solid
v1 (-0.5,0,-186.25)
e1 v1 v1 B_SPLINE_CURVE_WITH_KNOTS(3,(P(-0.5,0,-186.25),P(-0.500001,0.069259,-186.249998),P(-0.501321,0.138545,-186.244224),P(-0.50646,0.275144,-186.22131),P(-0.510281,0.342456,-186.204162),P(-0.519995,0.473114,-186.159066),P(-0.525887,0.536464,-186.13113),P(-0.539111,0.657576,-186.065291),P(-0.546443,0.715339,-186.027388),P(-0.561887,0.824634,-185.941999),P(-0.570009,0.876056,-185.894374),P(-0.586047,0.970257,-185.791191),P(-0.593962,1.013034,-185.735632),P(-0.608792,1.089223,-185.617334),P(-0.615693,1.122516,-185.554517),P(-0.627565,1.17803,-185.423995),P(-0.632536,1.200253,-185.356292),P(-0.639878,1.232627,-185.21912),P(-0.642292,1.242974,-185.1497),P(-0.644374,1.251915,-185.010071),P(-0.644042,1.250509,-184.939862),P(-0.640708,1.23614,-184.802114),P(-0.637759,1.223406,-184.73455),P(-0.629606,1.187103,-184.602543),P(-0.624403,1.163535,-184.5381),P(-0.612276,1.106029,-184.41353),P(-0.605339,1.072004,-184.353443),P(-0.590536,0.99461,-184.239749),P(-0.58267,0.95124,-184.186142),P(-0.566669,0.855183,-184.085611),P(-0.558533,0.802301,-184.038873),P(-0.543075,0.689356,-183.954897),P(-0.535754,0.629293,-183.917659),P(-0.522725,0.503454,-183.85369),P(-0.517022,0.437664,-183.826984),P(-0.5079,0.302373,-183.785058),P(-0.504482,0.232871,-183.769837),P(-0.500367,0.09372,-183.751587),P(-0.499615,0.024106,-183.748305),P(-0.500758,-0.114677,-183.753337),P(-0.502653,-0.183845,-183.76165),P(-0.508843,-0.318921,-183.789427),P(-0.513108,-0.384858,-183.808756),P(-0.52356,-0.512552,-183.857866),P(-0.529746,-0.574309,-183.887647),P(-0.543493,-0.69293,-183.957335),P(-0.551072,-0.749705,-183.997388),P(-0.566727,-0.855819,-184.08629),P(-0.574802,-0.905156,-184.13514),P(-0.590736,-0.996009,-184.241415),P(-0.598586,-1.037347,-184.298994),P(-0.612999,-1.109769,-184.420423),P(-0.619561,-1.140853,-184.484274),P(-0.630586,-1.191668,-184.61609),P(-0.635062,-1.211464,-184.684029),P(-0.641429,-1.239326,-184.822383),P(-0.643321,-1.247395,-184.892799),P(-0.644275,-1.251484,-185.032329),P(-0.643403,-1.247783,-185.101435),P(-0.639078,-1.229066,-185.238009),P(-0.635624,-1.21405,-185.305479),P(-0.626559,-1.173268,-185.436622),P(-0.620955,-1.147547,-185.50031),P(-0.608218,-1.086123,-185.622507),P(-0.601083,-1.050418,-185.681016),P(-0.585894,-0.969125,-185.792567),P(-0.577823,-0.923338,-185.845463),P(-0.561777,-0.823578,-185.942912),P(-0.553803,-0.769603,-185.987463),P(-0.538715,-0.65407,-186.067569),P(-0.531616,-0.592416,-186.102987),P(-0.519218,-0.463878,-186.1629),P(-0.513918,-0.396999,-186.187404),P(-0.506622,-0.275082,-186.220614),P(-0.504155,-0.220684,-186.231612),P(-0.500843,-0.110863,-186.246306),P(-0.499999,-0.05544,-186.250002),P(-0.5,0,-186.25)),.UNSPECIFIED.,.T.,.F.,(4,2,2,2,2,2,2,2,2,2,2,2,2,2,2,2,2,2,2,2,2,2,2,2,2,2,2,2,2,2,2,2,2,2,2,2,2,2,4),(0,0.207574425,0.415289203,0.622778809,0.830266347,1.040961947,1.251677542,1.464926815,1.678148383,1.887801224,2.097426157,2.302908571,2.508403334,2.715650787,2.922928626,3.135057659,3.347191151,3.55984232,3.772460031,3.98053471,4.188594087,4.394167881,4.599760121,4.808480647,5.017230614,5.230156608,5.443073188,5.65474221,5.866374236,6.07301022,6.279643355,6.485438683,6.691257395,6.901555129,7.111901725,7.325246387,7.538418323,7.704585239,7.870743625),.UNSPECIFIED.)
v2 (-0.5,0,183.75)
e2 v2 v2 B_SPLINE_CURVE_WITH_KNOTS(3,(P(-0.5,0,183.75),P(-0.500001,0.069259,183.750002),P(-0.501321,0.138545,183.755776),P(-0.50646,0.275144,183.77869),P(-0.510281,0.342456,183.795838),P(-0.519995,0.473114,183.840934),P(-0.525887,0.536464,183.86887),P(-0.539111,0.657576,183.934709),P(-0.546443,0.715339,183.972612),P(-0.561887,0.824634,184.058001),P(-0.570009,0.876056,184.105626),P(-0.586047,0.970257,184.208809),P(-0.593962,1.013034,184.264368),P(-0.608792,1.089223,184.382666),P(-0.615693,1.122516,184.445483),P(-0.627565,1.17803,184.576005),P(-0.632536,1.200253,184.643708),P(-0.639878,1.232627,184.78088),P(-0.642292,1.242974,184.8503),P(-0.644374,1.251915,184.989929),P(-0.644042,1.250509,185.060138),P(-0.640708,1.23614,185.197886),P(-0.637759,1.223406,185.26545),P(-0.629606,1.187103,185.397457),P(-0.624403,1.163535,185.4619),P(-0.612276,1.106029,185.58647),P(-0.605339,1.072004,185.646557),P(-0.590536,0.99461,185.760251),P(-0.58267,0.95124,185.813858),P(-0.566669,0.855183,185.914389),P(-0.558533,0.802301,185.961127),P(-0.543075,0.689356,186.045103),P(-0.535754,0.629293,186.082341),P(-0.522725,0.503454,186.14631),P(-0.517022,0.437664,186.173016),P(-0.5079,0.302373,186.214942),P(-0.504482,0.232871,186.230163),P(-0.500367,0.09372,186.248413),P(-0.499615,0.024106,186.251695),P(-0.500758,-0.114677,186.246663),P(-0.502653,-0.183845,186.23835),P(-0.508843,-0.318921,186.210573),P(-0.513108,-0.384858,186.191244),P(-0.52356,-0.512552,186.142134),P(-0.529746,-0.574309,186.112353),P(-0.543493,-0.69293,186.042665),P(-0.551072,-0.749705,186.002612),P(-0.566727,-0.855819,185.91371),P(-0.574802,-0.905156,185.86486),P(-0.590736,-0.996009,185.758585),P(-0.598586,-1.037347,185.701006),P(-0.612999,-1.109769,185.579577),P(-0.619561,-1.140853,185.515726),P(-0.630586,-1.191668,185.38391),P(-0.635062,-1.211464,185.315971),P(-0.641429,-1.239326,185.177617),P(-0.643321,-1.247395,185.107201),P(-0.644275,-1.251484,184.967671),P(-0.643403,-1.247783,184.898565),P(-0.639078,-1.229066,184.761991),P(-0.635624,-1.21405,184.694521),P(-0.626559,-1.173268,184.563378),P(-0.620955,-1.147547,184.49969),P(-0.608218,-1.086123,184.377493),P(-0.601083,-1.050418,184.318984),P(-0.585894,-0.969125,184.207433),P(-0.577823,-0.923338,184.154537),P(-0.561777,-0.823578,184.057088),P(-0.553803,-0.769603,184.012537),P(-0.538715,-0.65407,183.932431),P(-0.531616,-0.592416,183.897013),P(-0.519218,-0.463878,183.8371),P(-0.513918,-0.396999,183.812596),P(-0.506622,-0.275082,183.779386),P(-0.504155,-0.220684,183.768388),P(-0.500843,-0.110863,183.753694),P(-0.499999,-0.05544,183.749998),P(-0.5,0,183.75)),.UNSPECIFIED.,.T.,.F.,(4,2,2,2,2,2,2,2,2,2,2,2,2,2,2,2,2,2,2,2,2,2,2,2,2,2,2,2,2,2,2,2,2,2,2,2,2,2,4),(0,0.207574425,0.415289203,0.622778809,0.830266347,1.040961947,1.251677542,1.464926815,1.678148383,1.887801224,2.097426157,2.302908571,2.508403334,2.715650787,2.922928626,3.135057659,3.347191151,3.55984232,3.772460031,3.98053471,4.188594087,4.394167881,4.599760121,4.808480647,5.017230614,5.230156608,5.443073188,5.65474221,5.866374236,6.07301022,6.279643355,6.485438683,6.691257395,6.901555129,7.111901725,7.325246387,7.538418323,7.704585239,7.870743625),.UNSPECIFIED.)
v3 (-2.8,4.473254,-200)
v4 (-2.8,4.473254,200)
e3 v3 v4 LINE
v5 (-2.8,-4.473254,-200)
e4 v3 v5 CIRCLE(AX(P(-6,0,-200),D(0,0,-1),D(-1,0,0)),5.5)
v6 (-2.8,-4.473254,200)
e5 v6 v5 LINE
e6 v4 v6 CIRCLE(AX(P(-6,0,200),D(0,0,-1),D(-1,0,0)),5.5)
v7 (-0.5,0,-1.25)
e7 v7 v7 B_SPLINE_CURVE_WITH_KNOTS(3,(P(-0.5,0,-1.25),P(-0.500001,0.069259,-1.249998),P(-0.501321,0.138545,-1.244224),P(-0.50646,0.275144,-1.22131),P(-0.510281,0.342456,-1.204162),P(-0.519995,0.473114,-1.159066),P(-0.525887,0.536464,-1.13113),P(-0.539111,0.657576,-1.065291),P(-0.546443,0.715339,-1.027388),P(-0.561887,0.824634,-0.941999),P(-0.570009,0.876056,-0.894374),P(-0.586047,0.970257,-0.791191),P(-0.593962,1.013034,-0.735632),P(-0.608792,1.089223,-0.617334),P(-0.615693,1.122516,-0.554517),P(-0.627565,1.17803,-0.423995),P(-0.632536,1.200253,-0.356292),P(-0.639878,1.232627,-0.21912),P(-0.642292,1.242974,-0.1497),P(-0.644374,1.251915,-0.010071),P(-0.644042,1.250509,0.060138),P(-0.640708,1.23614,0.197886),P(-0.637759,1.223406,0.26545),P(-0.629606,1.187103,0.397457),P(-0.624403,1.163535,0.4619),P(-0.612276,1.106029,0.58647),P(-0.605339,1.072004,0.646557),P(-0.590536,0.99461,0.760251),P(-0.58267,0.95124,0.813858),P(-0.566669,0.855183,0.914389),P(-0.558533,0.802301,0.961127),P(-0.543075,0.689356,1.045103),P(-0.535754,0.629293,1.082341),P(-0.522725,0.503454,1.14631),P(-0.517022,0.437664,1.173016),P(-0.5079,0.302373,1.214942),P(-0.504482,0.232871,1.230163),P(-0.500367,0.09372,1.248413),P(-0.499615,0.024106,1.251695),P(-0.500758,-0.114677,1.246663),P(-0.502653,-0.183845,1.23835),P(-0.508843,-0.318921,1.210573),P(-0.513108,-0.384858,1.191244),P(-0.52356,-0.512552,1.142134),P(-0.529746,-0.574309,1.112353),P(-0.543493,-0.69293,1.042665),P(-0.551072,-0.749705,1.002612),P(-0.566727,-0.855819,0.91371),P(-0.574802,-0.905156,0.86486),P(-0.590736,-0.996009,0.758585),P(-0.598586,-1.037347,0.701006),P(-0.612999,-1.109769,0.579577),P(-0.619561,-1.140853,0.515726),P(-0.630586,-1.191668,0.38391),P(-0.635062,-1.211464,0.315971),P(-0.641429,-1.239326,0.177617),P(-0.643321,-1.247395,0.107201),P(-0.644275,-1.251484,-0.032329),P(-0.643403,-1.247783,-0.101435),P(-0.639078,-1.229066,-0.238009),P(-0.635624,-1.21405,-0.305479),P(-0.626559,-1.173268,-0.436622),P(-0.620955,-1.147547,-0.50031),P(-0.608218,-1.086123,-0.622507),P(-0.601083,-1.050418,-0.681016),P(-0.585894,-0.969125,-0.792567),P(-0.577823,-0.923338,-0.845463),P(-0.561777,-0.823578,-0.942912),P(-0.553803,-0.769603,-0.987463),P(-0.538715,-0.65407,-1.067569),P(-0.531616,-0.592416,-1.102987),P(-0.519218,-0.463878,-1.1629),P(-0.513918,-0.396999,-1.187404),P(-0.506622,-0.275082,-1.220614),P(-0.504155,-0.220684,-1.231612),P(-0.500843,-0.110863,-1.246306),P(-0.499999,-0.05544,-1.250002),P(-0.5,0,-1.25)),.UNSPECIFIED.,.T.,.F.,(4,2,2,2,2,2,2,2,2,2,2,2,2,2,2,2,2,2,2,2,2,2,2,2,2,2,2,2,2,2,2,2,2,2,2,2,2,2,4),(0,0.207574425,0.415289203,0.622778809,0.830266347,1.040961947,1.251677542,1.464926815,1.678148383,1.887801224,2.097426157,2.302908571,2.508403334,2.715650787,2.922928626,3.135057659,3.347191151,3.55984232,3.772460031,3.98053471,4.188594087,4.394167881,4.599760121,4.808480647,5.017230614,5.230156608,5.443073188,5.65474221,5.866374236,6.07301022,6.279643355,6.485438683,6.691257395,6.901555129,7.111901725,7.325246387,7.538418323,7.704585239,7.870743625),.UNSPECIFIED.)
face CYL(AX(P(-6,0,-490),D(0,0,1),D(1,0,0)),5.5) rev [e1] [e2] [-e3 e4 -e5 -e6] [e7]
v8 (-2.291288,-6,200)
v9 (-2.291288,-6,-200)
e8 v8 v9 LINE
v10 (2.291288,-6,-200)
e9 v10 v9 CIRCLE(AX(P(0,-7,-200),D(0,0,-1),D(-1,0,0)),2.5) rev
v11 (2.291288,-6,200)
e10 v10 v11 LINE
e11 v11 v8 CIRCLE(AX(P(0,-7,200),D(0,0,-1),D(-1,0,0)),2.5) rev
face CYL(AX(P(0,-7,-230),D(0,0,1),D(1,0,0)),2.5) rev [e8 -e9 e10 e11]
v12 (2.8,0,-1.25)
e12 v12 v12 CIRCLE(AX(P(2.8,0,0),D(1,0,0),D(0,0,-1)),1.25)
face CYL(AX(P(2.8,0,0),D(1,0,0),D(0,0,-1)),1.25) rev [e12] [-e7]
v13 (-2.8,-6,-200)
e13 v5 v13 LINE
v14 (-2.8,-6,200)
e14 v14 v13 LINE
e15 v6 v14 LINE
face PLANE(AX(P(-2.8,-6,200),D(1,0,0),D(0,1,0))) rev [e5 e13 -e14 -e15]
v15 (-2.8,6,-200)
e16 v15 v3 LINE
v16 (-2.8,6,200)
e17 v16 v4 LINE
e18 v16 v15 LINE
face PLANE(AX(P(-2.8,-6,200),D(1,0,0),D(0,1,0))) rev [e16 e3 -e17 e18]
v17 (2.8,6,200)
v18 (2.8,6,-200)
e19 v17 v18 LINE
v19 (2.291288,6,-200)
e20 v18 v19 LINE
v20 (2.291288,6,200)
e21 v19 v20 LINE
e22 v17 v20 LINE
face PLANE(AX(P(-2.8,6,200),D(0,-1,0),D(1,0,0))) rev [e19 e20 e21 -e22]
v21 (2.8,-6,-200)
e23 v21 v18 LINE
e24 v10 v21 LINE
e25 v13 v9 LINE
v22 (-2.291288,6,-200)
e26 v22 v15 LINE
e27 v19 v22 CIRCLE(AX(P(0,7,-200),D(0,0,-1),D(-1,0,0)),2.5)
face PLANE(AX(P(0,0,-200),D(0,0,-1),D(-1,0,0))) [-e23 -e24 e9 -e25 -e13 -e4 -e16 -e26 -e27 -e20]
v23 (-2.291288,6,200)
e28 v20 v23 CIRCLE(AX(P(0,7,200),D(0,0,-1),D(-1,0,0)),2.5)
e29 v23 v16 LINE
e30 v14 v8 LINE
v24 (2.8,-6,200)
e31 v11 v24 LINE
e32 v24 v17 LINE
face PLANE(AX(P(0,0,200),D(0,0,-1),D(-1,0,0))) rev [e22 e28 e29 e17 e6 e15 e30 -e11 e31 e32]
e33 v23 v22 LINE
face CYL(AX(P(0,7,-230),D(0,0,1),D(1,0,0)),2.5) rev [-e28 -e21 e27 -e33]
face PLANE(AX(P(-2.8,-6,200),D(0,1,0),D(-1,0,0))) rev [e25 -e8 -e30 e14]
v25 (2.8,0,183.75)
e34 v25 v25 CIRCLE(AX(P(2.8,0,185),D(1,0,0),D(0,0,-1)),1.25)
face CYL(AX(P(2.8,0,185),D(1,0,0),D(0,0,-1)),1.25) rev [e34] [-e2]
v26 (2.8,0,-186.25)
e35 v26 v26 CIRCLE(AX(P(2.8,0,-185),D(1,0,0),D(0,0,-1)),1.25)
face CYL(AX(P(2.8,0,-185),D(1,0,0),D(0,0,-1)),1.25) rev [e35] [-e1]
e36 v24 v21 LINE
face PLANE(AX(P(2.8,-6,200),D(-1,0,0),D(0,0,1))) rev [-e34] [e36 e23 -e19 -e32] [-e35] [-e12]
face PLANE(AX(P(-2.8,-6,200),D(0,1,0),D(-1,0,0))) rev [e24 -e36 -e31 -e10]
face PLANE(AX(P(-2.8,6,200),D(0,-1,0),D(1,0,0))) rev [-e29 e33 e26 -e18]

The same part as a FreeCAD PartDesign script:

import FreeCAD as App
import Part
import Sketcher

V = App.Vector


def add_polygon(sketch, points):
    """Adds a closed chain of lines whose ends are joined by coincident constraints."""
    first, n = sketch.GeometryCount, len(points)
    for a, b in zip(points, points[1:] + points[:1]):
        sketch.addGeometry(Part.LineSegment(App.Vector(*a, 0), App.Vector(*b, 0)), False)
    for i in range(n):
        sketch.addConstraint(Sketcher.Constraint("Coincident", first + i, 2, first + (i + 1) % n, 1))

doc = App.newDocument("Part")
params = doc.addObject("Spreadsheet::Sheet", "Params")
for row, (alias, value) in enumerate([
    ("sketch1_height", "12 mm"),
    ("sketch1_width", "5.6 mm"),
    ("pad1_length", "400 mm"),
    ("sketch2_diameter", "5 mm"),
    ("pocket1_length", "460 mm"),
    ("sketch3_diameter", "11 mm"),
    ("pocket2_length", "1380 mm"),
    ("sketch4_diameter", "2.5 mm"),
    ("hole_diameter", "2.5 mm"),
], start=1):
    params.set(f"A{row}", alias)
    params.set(f"B{row}", "=" + value)
    params.setAlias(f"B{row}", alias)

body = doc.addObject("PartDesign::Body", "Body")

# Sketch on XY plane
sketch1 = body.newObject("Sketcher::SketchObject", "Sketch")
sketch1.AttachmentSupport = (doc.getObject("XY_Plane"), [""])
sketch1.MapMode = "FlatFace"
add_polygon(sketch1, [(-2.8, 6), (-2.8, -6), (2.8, -6), (2.8, 6)])  # lines 0-3
sketch1.addConstraint(Sketcher.Constraint("Vertical", 0))
sketch1.addConstraint(Sketcher.Constraint("Horizontal", 1))
sketch1.addConstraint(Sketcher.Constraint("Vertical", 2))
sketch1.addConstraint(Sketcher.Constraint("Horizontal", 3))
sketch1.addConstraint(Sketcher.Constraint("Symmetric", 0, 2, 2, 2, -1, 1))
sketch1.addConstraint(Sketcher.Constraint("DistanceY", 0, 2, 0, 1, 12.0))
sketch1.addConstraint(Sketcher.Constraint("DistanceX", 1, 1, 1, 2, 5.6))
sketch1.setExpression("Constraints[9]", "Params.sketch1_height")
sketch1.setExpression("Constraints[10]", "Params.sketch1_width")
pad1 = body.newObject("PartDesign::Pad", "Pad")
pad1.Profile = sketch1
pad1.setExpression("Length", "Params.pad1_length")
pad1.Midplane = True

# Sketch on XY plane
sketch2 = body.newObject("Sketcher::SketchObject", "Sketch001")
sketch2.AttachmentSupport = (doc.getObject("XY_Plane"), [""])
sketch2.MapMode = "FlatFace"
sketch2.addGeometry(Part.Circle(V(0, 7, 0), V(0, 0, 1), 2.5), False)
sketch2.addConstraint(Sketcher.Constraint("PointOnObject", 0, 3, -2))
sketch2.addConstraint(Sketcher.Constraint("Diameter", 0, 5.0))
sketch2.addConstraint(Sketcher.Constraint("DistanceY", -1, 1, 0, 3, 7.0))
sketch2.setExpression("Constraints[1]", "Params.sketch2_diameter")
pocket1 = body.newObject("PartDesign::Pocket", "Pocket")
pocket1.Profile = sketch2
pocket1.setExpression("Length", "Params.pocket1_length")
pocket1.Midplane = True
doc.recompute()

mirrored = body.newObject("PartDesign::Mirrored", "Mirrored")
mirrored.Originals = [pocket1]
mirrored.MirrorPlane = (doc.getObject("XZ_Plane"), [""])
body.Tip = mirrored

# Sketch on XY plane
sketch3 = body.newObject("Sketcher::SketchObject", "Sketch002")
sketch3.AttachmentSupport = (doc.getObject("XY_Plane"), [""])
sketch3.MapMode = "FlatFace"
sketch3.AttachmentOffset = App.Placement(V(0, 0, 200), App.Rotation())
sketch3.addGeometry(Part.Circle(V(-6, 0, 0), V(0, 0, 1), 5.5), False)
sketch3.addConstraint(Sketcher.Constraint("PointOnObject", 0, 3, -1))
sketch3.addConstraint(Sketcher.Constraint("Diameter", 0, 11.0))
sketch3.addConstraint(Sketcher.Constraint("DistanceX", 0, 3, -1, 1, 6.0))
sketch3.setExpression("Constraints[1]", "Params.sketch3_diameter")
pocket2 = body.newObject("PartDesign::Pocket", "Pocket001")
pocket2.Profile = sketch3
pocket2.setExpression("Length", "Params.pocket2_length")
pocket2.Midplane = True

# Sketch on YZ plane
sketch4 = body.newObject("Sketcher::SketchObject", "Sketch003")
sketch4.AttachmentSupport = (doc.getObject("YZ_Plane"), [""])
sketch4.MapMode = "FlatFace"
sketch4.AttachmentOffset = App.Placement(V(0, 0, 2.8), App.Rotation())
sketch4.addGeometry(Part.Circle(V(0, 185, 0), V(0, 0, 1), 1.25), False)
sketch4.addGeometry(Part.Circle(V(0, 0, 0), V(0, 0, 1), 1.25), False)
sketch4.addGeometry(Part.Circle(V(0, -185, 0), V(0, 0, 1), 1.25), False)
sketch4.addConstraint(Sketcher.Constraint("Coincident", 1, 3, -1, 1))
sketch4.addConstraint(Sketcher.Constraint("Equal", 0, 1))
sketch4.addConstraint(Sketcher.Constraint("Equal", 1, 2))
sketch4.addConstraint(Sketcher.Constraint("Symmetric", 0, 3, 2, 3, -1, 1))
sketch4.addConstraint(Sketcher.Constraint("PointOnObject", 0, 3, -2))
sketch4.addConstraint(Sketcher.Constraint("Diameter", 0, 2.5))
sketch4.addConstraint(Sketcher.Constraint("DistanceY", -1, 1, 0, 3, 185.0))
sketch4.setExpression("Constraints[5]", "Params.sketch4_diameter")
doc.recompute()
hole = body.newObject("PartDesign::Hole", "Hole")
hole.Profile = sketch4
hole.ThreadType = "None"
hole.setExpression("Diameter", "Params.hole_diameter")
hole.DepthType = "ThroughAll"

doc.recompute()
